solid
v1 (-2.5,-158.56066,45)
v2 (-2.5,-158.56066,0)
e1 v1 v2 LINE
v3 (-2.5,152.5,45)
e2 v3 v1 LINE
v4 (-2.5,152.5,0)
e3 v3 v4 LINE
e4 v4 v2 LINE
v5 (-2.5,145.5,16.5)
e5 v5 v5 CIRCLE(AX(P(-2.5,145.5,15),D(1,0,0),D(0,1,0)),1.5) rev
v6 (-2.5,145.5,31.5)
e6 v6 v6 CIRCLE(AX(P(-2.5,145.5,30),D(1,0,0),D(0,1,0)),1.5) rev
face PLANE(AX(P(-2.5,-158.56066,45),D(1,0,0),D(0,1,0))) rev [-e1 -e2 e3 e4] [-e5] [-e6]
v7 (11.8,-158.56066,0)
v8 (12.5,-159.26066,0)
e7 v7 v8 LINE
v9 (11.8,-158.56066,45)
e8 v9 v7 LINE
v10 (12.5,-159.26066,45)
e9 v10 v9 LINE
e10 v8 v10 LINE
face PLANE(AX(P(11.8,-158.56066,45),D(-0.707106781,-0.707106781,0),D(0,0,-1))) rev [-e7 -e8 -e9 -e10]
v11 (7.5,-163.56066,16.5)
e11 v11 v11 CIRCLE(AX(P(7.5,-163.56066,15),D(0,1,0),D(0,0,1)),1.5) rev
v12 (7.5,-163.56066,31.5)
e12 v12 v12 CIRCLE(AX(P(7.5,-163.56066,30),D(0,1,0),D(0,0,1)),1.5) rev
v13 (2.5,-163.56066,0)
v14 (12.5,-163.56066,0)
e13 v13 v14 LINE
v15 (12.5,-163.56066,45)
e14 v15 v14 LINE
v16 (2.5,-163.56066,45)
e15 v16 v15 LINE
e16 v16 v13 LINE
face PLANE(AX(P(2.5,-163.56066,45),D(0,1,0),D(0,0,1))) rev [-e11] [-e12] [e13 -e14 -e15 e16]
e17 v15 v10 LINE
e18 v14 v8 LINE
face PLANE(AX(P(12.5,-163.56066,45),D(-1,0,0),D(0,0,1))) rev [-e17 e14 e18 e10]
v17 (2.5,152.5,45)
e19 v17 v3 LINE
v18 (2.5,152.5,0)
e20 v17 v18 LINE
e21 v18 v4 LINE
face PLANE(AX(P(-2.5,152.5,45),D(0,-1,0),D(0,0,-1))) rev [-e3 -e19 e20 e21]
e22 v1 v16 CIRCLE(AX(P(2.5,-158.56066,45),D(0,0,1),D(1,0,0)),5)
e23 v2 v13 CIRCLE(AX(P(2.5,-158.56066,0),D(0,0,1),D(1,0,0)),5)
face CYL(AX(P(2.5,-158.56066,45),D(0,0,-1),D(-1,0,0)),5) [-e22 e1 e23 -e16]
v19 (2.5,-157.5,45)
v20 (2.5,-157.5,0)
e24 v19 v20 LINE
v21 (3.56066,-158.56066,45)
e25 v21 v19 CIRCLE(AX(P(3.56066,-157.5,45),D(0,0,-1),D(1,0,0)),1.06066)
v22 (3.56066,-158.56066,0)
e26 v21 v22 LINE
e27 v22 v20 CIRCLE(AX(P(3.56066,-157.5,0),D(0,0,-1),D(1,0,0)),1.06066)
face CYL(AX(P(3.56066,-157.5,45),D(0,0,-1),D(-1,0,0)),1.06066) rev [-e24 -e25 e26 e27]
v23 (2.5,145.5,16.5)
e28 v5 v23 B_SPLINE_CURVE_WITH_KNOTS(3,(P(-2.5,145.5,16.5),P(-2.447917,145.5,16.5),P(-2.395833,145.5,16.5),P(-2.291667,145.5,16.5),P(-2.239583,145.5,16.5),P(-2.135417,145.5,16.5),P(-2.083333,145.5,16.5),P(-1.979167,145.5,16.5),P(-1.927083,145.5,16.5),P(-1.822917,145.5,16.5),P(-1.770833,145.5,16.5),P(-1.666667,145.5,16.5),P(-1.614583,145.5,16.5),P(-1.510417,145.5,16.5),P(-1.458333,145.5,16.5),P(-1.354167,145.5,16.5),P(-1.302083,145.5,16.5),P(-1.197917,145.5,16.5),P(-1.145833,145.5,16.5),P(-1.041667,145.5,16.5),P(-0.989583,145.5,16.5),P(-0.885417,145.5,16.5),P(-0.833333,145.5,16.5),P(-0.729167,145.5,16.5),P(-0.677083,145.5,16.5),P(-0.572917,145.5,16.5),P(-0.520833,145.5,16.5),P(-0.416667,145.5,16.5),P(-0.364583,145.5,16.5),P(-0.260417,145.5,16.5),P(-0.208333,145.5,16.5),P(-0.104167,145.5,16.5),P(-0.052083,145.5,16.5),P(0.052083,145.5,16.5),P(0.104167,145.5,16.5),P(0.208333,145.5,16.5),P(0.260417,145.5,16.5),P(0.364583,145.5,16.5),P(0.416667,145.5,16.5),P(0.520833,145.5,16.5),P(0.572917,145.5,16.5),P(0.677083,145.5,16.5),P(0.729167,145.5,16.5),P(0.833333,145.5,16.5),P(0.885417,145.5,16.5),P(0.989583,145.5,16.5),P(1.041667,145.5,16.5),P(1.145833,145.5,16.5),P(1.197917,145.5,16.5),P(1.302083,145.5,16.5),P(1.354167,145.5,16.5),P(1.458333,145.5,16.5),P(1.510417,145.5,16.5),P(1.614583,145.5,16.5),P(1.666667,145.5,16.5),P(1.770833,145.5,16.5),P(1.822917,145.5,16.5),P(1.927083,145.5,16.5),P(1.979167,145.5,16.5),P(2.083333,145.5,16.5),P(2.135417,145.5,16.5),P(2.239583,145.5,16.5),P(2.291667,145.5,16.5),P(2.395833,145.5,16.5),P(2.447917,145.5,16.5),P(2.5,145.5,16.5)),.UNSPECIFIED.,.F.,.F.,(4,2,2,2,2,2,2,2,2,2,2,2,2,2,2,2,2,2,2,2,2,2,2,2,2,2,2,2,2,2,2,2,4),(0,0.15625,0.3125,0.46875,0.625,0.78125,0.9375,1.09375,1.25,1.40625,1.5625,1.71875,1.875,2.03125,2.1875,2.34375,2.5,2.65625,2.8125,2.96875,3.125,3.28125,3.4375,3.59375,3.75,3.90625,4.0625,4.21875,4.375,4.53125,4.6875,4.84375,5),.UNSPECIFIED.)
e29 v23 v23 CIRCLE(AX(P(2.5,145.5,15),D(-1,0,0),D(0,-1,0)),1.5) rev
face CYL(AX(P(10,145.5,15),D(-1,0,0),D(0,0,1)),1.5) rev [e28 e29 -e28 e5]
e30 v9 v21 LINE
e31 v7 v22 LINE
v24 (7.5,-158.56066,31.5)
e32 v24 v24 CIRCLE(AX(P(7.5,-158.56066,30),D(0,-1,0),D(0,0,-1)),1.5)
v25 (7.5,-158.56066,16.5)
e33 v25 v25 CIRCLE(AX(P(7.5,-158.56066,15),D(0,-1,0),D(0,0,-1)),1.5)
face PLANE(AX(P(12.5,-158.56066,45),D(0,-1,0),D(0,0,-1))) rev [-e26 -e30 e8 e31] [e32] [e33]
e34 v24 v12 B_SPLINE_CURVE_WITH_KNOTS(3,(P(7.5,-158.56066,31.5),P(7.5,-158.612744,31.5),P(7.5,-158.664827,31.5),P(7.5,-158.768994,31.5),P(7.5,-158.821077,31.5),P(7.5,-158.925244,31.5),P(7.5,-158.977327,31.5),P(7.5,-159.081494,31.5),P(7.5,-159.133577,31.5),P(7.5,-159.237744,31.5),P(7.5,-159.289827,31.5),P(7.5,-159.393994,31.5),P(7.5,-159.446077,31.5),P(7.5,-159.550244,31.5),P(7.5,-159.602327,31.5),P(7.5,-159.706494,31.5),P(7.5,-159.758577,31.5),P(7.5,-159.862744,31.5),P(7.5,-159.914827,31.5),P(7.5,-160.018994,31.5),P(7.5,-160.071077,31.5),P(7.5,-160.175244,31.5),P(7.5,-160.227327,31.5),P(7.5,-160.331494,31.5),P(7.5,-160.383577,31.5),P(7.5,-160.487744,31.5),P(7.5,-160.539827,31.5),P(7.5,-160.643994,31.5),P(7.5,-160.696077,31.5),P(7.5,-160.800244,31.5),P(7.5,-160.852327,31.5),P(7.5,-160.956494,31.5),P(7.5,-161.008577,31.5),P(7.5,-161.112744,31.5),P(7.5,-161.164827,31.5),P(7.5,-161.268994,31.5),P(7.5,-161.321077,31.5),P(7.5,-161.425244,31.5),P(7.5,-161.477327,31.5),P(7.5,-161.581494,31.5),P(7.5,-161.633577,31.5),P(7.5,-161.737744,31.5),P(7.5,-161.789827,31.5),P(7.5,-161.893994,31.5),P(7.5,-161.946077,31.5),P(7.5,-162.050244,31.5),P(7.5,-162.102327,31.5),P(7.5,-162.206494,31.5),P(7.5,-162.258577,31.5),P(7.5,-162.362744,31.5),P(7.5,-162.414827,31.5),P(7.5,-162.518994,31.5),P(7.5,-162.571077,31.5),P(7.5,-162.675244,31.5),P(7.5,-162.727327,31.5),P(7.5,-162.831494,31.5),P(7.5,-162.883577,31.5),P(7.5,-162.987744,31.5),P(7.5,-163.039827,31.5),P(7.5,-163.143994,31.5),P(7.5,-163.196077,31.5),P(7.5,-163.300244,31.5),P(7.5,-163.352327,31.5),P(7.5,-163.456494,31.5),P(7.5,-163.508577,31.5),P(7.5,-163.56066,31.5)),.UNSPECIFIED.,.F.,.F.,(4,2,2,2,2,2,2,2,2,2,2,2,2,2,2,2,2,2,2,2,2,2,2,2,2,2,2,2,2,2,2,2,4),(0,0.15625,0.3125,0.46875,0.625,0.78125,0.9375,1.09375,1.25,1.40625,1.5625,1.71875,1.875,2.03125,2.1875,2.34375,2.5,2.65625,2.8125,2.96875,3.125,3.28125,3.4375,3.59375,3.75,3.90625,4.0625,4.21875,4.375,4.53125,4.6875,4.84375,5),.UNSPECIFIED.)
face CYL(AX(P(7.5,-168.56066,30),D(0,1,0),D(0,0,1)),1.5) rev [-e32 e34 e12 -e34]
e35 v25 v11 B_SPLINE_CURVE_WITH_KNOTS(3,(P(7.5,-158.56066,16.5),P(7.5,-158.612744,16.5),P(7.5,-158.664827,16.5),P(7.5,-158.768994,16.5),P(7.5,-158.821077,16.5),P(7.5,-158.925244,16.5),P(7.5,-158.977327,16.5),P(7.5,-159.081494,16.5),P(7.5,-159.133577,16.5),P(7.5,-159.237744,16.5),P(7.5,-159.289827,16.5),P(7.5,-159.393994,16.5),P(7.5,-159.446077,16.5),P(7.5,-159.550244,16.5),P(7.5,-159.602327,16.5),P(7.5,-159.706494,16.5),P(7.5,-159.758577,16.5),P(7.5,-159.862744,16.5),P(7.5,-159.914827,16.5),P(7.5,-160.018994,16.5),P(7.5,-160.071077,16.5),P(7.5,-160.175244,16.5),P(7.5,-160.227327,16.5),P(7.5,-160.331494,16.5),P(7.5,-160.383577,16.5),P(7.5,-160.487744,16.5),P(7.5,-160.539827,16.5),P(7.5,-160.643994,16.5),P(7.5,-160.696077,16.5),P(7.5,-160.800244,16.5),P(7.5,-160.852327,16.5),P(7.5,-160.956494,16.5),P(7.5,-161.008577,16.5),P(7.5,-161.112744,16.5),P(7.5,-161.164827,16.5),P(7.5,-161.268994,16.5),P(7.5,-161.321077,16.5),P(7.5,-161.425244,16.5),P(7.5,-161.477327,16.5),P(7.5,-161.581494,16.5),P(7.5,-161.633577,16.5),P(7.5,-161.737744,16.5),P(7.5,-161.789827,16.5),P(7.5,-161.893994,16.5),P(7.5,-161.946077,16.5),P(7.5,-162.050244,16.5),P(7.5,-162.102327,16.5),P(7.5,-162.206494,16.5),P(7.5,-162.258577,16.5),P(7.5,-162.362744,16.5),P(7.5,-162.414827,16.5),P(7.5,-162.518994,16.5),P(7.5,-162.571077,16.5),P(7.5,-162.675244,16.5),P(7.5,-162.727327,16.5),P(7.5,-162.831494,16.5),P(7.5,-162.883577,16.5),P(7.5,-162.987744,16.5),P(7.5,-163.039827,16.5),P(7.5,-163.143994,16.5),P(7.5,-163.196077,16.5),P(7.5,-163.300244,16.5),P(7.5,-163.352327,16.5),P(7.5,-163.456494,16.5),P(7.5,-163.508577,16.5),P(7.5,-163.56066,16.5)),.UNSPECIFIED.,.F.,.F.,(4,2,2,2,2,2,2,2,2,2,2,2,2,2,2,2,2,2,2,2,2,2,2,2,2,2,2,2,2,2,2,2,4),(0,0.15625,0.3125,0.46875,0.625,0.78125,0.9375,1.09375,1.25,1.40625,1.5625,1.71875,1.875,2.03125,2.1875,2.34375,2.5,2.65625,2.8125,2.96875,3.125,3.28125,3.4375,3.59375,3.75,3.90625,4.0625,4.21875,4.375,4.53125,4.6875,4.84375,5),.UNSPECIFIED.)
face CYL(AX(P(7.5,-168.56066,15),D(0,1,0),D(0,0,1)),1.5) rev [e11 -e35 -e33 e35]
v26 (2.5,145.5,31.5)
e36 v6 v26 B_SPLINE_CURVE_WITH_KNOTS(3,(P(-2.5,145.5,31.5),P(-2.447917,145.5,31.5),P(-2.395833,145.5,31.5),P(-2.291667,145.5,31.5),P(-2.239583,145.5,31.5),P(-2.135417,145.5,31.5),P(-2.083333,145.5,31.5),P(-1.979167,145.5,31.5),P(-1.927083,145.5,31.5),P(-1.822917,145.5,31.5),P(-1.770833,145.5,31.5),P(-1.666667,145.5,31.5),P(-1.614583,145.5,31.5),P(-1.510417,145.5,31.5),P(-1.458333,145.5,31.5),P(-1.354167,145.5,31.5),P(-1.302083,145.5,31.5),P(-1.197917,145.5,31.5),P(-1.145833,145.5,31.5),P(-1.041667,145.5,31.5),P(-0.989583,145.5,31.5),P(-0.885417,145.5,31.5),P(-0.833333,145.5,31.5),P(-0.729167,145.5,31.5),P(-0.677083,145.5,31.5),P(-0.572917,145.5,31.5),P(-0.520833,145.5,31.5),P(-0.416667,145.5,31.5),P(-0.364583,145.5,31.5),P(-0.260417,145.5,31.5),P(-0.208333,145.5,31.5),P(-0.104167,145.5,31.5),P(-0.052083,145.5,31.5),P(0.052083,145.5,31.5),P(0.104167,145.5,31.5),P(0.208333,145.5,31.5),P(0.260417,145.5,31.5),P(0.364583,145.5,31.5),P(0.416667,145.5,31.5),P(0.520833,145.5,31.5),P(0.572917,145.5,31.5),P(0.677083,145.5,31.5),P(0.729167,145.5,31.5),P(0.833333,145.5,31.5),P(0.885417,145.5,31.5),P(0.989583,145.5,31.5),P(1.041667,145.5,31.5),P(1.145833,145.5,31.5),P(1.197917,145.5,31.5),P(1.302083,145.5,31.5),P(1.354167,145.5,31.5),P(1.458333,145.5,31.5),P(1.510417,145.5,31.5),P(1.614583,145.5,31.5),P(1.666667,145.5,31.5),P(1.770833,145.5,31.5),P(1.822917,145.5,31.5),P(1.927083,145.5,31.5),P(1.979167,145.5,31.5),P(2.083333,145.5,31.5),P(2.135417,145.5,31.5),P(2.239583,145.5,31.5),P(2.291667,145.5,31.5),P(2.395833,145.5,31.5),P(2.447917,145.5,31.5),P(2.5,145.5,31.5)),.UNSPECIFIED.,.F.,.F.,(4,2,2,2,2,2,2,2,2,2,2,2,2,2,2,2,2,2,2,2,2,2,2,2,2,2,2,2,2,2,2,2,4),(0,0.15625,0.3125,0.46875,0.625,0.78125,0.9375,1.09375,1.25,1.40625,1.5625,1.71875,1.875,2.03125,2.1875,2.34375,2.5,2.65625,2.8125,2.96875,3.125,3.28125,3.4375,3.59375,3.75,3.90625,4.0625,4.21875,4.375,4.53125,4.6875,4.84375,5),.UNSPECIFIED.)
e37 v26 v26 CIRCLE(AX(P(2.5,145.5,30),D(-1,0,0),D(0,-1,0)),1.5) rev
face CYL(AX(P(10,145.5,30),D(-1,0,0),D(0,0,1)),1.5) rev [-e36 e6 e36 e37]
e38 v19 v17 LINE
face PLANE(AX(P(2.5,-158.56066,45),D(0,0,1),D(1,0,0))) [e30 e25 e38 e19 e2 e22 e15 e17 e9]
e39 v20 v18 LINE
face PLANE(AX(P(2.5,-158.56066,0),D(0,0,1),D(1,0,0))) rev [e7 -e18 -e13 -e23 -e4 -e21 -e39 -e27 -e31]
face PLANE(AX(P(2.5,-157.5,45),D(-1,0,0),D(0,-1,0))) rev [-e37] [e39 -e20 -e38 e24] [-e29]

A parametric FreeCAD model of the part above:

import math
import FreeCAD as App
import Part
import Sketcher

V = App.Vector


def edges_at(feature, points):
    """Names of the edges that pass closest to the given points."""
    edges = feature.Shape.Edges
    near = lambda p: min(range(len(edges)), key=lambda i: edges[i].distToShape(Part.Vertex(*p))[0])
    return sorted({f"Edge{near(p) + 1}" for p in points})

doc = App.newDocument("Part")
body = doc.addObject("PartDesign::Body", "Body")

# Sketch on XY plane
sketch1 = doc.addObject("Sketcher::SketchObject", "Sketch")
body.addObject(sketch1)
sketch1.AttachmentSupport = (doc.XY_Plane, [""])
sketch1.MapMode = "FlatFace"
sketch1.addGeometry([
    Part.LineSegment(V(2.5, -163.6, 0), V(12.5, -163.6, 0)),  # 0
    Part.LineSegment(V(12.5, -163.6, 0), V(12.5, -158.6, 0)),  # 1
    Part.LineSegment(V(12.5, -158.6, 0), V(3.6, -158.6, 0)),  # 2
    Part.ArcOfCircle(Part.Circle(V(3.6, -157.5, 0), V(0, 0, 1), 1.1), math.radians(-180), math.radians(-90)),  # 3
    Part.LineSegment(V(2.5, -157.5, 0), V(2.5, 152.5, 0)),  # 4
    Part.LineSegment(V(2.5, 152.5, 0), V(-2.5, 152.5, 0)),  # 5
    Part.LineSegment(V(-2.5, 152.5, 0), V(-2.5, -158.6, 0)),  # 6
    Part.ArcOfCircle(Part.Circle(V(2.5, -158.6, 0), V(0, 0, 1), 5), math.radians(180), math.radians(270)),  # 7
], False)
sketch1.addConstraint([
    Sketcher.Constraint("Coincident", 0, 2, 1, 1),
    Sketcher.Constraint("Coincident", 1, 2, 2, 1),
    Sketcher.Constraint("Tangent", 2, 2, 3, 2),
    Sketcher.Constraint("Tangent", 3, 1, 4, 1),
    Sketcher.Constraint("Coincident", 4, 2, 5, 1),
    Sketcher.Constraint("Coincident", 5, 2, 6, 1),
    Sketcher.Constraint("Tangent", 6, 2, 7, 1),
    Sketcher.Constraint("Tangent", 7, 2, 0, 1),
    Sketcher.Constraint("Horizontal", 0),
    Sketcher.Constraint("Vertical", 1),
    Sketcher.Constraint("Horizontal", 2),
    Sketcher.Constraint("Vertical", 4),
    Sketcher.Constraint("Horizontal", 5),
    Sketcher.Constraint("Vertical", 6),
    Sketcher.Constraint("Horizontal", 7, 3, 1, 2),
    Sketcher.Constraint("Vertical", 7, 3, 3, 1),
    Sketcher.Constraint("Radius", 7, 5.0),
    Sketcher.Constraint("DistanceX", 0, 1, 0, 2, 10.0),
    Sketcher.Constraint("DistanceY", 4, 1, 4, 2, 310.0),
    Sketcher.Constraint("DistanceY", 3, 3, -1, 1, 157.5),
    Sketcher.Constraint("DistanceX", -1, 1, 7, 3, 2.5),
    Sketcher.Constraint("Radius", 3, 1.06066),
])
pad1 = doc.addObject("PartDesign::Pad", "Pad")
body.addObject(pad1)
pad1.Profile = sketch1
pad1.Length = 45

# Sketch on XZ plane
sketch2 = doc.addObject("Sketcher::SketchObject", "Sketch001")
body.addObject(sketch2)
sketch2.AttachmentSupport = (doc.XZ_Plane, [""])
sketch2.MapMode = "FlatFace"
sketch2.AttachmentOffset = App.Placement(V(0, 0, 158.56066), App.Rotation())
sketch2.addGeometry([
    Part.Circle(V(7.5, 15, 0), V(0, 0, 1), 1.5),
    Part.Circle(V(7.5, 30, 0), V(0, 0, 1), 1.5),
], False)
sketch2.addConstraint([
    Sketcher.Constraint("Equal", 0, 1),
    Sketcher.Constraint("Vertical", 0, 3, 1, 3),
    Sketcher.Constraint("Diameter", 0, 3.0),
    Sketcher.Constraint("DistanceY", -1, 1, 0, 3, 15.0),
    Sketcher.Constraint("DistanceY", -1, 1, 1, 3, 30.0),
    Sketcher.Constraint("DistanceX", -1, 1, 0, 3, 7.5),
])
pocket1 = doc.addObject("PartDesign::Pocket", "Pocket")
body.addObject(pocket1)
pocket1.Profile = sketch2
pocket1.Length = 10
pocket1.Reversed = True

# Sketch on YZ plane
sketch3 = doc.addObject("Sketcher::SketchObject", "Sketch002")
body.addObject(sketch3)
sketch3.AttachmentSupport = (doc.YZ_Plane, [""])
sketch3.MapMode = "FlatFace"
sketch3.addGeometry([
    Part.Circle(V(145.5, 15, 0), V(0, 0, 1), 1.5),
    Part.Circle(V(145.5, 30, 0), V(0, 0, 1), 1.5),
], False)
sketch3.addConstraint([
    Sketcher.Constraint("Equal", 0, 1),
    Sketcher.Constraint("Vertical", 0, 3, 1, 3),
    Sketcher.Constraint("Diameter", 0, 3.0),
    Sketcher.Constraint("DistanceY", -1, 1, 0, 3, 15.0),
    Sketcher.Constraint("DistanceY", -1, 1, 1, 3, 30.0),
    Sketcher.Constraint("DistanceX", -1, 1, 0, 3, 145.5),
])
pocket2 = doc.addObject("PartDesign::Pocket", "Pocket001")
body.addObject(pocket2)
pocket2.Profile = sketch3
pocket2.Type = "ThroughAll"
pocket2.Midplane = True
doc.recompute()

chamfer = doc.addObject("PartDesign::Chamfer", "Chamfer")
body.addObject(chamfer)
chamfer.Base = (pocket2, edges_at(pocket2, [(12.5, -158.561, 22.5)]))
chamfer.Size = 0.7

doc.recompute()
